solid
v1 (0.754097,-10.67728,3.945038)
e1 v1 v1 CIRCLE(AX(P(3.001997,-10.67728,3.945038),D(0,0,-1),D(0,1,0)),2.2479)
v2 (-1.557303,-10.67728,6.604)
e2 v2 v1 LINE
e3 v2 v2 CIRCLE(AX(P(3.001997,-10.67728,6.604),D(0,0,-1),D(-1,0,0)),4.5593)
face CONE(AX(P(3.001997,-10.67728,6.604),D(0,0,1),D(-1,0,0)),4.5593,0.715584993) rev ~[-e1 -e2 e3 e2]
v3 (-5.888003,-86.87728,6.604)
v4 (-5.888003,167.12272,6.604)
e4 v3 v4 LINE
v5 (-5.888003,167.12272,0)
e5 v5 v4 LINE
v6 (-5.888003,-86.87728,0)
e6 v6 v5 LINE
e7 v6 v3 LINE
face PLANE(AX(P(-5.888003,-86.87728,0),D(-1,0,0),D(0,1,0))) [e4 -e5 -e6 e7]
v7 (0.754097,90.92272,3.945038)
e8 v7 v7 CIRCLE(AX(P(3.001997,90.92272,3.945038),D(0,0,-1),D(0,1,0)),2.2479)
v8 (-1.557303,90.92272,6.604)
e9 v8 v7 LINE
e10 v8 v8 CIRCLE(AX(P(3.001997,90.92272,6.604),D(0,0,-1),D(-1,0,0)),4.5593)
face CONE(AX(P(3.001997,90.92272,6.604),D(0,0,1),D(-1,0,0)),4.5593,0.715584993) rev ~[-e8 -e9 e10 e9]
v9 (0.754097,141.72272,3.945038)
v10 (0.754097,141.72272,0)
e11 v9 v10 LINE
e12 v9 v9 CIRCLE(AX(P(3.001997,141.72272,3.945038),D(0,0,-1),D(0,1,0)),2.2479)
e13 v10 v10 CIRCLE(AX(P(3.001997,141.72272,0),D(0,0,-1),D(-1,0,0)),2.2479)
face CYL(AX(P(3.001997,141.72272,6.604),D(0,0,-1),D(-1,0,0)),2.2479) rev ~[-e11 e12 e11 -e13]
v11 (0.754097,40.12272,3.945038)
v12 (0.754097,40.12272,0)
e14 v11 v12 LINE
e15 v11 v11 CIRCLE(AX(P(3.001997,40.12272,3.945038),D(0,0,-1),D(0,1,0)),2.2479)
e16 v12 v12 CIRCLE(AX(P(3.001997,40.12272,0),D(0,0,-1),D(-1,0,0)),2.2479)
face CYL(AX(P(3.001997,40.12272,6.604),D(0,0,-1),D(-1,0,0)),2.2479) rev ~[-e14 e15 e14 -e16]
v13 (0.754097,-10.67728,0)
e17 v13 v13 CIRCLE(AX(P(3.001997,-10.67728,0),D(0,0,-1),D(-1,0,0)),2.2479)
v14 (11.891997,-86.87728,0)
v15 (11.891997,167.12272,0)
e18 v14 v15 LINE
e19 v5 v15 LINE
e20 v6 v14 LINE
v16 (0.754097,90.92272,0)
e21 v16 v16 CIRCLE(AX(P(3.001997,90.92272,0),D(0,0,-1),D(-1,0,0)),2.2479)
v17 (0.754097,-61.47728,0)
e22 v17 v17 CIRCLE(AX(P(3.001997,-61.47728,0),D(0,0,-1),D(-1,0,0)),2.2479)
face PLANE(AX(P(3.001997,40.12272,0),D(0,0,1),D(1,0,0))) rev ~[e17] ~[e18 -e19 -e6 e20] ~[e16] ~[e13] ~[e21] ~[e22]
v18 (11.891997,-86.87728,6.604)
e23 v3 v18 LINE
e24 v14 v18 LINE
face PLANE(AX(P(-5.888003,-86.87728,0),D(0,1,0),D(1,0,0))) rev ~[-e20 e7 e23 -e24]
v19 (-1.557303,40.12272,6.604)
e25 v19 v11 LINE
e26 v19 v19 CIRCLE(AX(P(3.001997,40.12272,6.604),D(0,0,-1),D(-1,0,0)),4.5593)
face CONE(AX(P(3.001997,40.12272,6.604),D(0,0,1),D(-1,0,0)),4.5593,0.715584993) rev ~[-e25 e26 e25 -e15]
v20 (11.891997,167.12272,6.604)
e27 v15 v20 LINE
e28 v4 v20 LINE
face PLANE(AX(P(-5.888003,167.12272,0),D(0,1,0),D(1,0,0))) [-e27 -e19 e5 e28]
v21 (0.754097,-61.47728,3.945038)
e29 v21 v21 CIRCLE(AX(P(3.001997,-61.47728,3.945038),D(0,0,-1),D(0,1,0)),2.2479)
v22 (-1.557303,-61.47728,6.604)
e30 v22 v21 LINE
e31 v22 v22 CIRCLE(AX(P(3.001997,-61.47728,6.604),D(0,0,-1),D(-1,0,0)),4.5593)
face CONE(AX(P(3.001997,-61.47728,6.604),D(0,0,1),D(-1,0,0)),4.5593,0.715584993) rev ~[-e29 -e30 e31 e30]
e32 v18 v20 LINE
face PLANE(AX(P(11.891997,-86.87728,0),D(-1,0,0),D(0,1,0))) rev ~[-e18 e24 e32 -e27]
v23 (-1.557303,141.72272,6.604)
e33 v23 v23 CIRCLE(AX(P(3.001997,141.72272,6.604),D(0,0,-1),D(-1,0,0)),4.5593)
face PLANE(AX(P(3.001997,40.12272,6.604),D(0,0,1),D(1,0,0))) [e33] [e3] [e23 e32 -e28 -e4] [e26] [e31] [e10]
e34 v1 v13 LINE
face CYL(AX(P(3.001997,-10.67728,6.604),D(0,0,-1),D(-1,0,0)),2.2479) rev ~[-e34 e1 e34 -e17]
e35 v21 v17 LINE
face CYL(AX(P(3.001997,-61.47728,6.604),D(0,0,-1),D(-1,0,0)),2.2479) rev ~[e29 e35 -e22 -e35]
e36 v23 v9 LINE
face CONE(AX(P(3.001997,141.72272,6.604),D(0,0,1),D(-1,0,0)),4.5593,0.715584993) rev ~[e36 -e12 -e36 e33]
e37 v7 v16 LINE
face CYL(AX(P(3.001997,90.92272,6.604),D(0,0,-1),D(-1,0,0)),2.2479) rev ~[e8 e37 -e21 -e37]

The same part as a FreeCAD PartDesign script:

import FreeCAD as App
import Part
import Sketcher
from FreeCAD import Vector
Q = App.Units.Quantity

doc = App.newDocument("Part")
params = doc.addObject("Spreadsheet::Sheet", "Params")
for row, (alias, value) in enumerate([
    ("sketch1_height", "10 in"),
    ("sketch1_width", "0.7 in"),
    ("pad1_length", "0.26 in"),
    ("sketch2_diameter", "0.177 in"),
    ("hole_diameter", "0.177 in"),
    ("hole_csink_diameter", "0.359 in"),
], start=1):
    params.set(f"A{row}", alias)
    params.set(f"B{row}", "=" + value)
    params.setAlias(f"B{row}", alias)

body = doc.addObject("PartDesign::Body", "Body")

# Sketch on XY plane
sketch1 = body.newObject("Sketcher::SketchObject", "Sketch")
sketch1.AttachmentSupport = (doc.getObject("XY_Plane"), [""])
sketch1.MapMode = "FlatFace"
sketch1.addGeometry(Part.LineSegment(Vector(-6, 167, 0), Vector(-6, -87, 0)), False)
sketch1.addGeometry(Part.LineSegment(Vector(-6, -87, 0), Vector(12, -87, 0)), False)
sketch1.addGeometry(Part.LineSegment(Vector(12, -87, 0), Vector(12, 167, 0)), False)
sketch1.addGeometry(Part.LineSegment(Vector(12, 167, 0), Vector(-6, 167, 0)), False)
sketch1.addConstraint(Sketcher.Constraint("Coincident", 0, 2, 1, 1))
sketch1.addConstraint(Sketcher.Constraint("Coincident", 1, 2, 2, 1))
sketch1.addConstraint(Sketcher.Constraint("Coincident", 2, 2, 3, 1))
sketch1.addConstraint(Sketcher.Constraint("Coincident", 3, 2, 0, 1))
sketch1.addConstraint(Sketcher.Constraint("Vertical", 0))
sketch1.addConstraint(Sketcher.Constraint("Horizontal", 1))
sketch1.addConstraint(Sketcher.Constraint("Vertical", 2))
sketch1.addConstraint(Sketcher.Constraint("Horizontal", 3))
sketch1.addConstraint(Sketcher.Constraint("DistanceY", 0, 2, 0, 1, Q("10 in")))
sketch1.addConstraint(Sketcher.Constraint("DistanceX", 1, 1, 1, 2, Q("0.7 in")))
sketch1.addConstraint(Sketcher.Constraint("DistanceY", 0, 2, -1, 1, 86.87728))
sketch1.addConstraint(Sketcher.Constraint("DistanceX", 0, 2, -1, 1, 5.888003))
sketch1.setExpression("Constraints[8]", "Params.sketch1_height")
sketch1.setExpression("Constraints[9]", "Params.sketch1_width")
pad1 = body.newObject("PartDesign::Pad", "Pad")
pad1.Profile = sketch1
pad1.setExpression("Length", "Params.pad1_length")

# Sketch on XY plane
sketch2 = body.newObject("Sketcher::SketchObject", "Sketch001")
sketch2.AttachmentSupport = (doc.getObject("XY_Plane"), [""])
sketch2.MapMode = "FlatFace"
sketch2.AttachmentOffset = App.Placement(Vector(0, 0, 0.26 * 25.4), App.Rotation())
sketch2.addGeometry(Part.Circle(Vector(3, 141.7, 0), Vector(0, 0, 1), 2.2), False)
sketch2.addGeometry(Part.Circle(Vector(3, 90.9, 0), Vector(0, 0, 1), 2.2), False)
sketch2.addGeometry(Part.Circle(Vector(3, 40.1, 0), Vector(0, 0, 1), 2.2), False)
sketch2.addGeometry(Part.Circle(Vector(3, -10.7, 0), Vector(0, 0, 1), 2.2), False)
sketch2.addGeometry(Part.Circle(Vector(3, -61.5, 0), Vector(0, 0, 1), 2.2), False)
sketch2.addConstraint(Sketcher.Constraint("Equal", 0, 1))
sketch2.addConstraint(Sketcher.Constraint("Equal", 1, 2))
sketch2.addConstraint(Sketcher.Constraint("Equal", 2, 3))
sketch2.addConstraint(Sketcher.Constraint("Equal", 3, 4))
sketch2.addConstraint(Sketcher.Constraint("Vertical", 0, 3, 1, 3))
sketch2.addConstraint(Sketcher.Constraint("Vertical", 1, 3, 2, 3))
sketch2.addConstraint(Sketcher.Constraint("Vertical", 2, 3, 3, 3))
sketch2.addConstraint(Sketcher.Constraint("Vertical", 3, 3, 4, 3))
sketch2.addConstraint(Sketcher.Constraint("Diameter", 0, Q("0.177 in")))
sketch2.addConstraint(Sketcher.Constraint("DistanceY", 1, 3, 0, 3, Q("2 in")))
sketch2.addConstraint(Sketcher.Constraint("DistanceY", 2, 3, 1, 3, Q("2 in")))
sketch2.addConstraint(Sketcher.Constraint("DistanceY", 3, 3, 2, 3, Q("2 in")))
sketch2.addConstraint(Sketcher.Constraint("DistanceY", 4, 3, 3, 3, Q("2 in")))
sketch2.addConstraint(Sketcher.Constraint("DistanceY", -1, 1, 0, 3, 141.72272))
sketch2.addConstraint(Sketcher.Constraint("DistanceX", -1, 1, 0, 3, 3.001997))
sketch2.setExpression("Constraints[8]", "Params.sketch2_diameter")
doc.recompute()
hole = body.newObject("PartDesign::Hole", "Hole")
hole.Profile = sketch2
hole.ThreadType = "None"
hole.setExpression("Diameter", "Params.hole_diameter")
hole.DepthType = "ThroughAll"
hole.HoleCutType = "Countersink"
hole.setExpression("HoleCutDiameter", "Params.hole_csink_diameter")
hole.HoleCutCountersinkAngle = 82

doc.recompute()
